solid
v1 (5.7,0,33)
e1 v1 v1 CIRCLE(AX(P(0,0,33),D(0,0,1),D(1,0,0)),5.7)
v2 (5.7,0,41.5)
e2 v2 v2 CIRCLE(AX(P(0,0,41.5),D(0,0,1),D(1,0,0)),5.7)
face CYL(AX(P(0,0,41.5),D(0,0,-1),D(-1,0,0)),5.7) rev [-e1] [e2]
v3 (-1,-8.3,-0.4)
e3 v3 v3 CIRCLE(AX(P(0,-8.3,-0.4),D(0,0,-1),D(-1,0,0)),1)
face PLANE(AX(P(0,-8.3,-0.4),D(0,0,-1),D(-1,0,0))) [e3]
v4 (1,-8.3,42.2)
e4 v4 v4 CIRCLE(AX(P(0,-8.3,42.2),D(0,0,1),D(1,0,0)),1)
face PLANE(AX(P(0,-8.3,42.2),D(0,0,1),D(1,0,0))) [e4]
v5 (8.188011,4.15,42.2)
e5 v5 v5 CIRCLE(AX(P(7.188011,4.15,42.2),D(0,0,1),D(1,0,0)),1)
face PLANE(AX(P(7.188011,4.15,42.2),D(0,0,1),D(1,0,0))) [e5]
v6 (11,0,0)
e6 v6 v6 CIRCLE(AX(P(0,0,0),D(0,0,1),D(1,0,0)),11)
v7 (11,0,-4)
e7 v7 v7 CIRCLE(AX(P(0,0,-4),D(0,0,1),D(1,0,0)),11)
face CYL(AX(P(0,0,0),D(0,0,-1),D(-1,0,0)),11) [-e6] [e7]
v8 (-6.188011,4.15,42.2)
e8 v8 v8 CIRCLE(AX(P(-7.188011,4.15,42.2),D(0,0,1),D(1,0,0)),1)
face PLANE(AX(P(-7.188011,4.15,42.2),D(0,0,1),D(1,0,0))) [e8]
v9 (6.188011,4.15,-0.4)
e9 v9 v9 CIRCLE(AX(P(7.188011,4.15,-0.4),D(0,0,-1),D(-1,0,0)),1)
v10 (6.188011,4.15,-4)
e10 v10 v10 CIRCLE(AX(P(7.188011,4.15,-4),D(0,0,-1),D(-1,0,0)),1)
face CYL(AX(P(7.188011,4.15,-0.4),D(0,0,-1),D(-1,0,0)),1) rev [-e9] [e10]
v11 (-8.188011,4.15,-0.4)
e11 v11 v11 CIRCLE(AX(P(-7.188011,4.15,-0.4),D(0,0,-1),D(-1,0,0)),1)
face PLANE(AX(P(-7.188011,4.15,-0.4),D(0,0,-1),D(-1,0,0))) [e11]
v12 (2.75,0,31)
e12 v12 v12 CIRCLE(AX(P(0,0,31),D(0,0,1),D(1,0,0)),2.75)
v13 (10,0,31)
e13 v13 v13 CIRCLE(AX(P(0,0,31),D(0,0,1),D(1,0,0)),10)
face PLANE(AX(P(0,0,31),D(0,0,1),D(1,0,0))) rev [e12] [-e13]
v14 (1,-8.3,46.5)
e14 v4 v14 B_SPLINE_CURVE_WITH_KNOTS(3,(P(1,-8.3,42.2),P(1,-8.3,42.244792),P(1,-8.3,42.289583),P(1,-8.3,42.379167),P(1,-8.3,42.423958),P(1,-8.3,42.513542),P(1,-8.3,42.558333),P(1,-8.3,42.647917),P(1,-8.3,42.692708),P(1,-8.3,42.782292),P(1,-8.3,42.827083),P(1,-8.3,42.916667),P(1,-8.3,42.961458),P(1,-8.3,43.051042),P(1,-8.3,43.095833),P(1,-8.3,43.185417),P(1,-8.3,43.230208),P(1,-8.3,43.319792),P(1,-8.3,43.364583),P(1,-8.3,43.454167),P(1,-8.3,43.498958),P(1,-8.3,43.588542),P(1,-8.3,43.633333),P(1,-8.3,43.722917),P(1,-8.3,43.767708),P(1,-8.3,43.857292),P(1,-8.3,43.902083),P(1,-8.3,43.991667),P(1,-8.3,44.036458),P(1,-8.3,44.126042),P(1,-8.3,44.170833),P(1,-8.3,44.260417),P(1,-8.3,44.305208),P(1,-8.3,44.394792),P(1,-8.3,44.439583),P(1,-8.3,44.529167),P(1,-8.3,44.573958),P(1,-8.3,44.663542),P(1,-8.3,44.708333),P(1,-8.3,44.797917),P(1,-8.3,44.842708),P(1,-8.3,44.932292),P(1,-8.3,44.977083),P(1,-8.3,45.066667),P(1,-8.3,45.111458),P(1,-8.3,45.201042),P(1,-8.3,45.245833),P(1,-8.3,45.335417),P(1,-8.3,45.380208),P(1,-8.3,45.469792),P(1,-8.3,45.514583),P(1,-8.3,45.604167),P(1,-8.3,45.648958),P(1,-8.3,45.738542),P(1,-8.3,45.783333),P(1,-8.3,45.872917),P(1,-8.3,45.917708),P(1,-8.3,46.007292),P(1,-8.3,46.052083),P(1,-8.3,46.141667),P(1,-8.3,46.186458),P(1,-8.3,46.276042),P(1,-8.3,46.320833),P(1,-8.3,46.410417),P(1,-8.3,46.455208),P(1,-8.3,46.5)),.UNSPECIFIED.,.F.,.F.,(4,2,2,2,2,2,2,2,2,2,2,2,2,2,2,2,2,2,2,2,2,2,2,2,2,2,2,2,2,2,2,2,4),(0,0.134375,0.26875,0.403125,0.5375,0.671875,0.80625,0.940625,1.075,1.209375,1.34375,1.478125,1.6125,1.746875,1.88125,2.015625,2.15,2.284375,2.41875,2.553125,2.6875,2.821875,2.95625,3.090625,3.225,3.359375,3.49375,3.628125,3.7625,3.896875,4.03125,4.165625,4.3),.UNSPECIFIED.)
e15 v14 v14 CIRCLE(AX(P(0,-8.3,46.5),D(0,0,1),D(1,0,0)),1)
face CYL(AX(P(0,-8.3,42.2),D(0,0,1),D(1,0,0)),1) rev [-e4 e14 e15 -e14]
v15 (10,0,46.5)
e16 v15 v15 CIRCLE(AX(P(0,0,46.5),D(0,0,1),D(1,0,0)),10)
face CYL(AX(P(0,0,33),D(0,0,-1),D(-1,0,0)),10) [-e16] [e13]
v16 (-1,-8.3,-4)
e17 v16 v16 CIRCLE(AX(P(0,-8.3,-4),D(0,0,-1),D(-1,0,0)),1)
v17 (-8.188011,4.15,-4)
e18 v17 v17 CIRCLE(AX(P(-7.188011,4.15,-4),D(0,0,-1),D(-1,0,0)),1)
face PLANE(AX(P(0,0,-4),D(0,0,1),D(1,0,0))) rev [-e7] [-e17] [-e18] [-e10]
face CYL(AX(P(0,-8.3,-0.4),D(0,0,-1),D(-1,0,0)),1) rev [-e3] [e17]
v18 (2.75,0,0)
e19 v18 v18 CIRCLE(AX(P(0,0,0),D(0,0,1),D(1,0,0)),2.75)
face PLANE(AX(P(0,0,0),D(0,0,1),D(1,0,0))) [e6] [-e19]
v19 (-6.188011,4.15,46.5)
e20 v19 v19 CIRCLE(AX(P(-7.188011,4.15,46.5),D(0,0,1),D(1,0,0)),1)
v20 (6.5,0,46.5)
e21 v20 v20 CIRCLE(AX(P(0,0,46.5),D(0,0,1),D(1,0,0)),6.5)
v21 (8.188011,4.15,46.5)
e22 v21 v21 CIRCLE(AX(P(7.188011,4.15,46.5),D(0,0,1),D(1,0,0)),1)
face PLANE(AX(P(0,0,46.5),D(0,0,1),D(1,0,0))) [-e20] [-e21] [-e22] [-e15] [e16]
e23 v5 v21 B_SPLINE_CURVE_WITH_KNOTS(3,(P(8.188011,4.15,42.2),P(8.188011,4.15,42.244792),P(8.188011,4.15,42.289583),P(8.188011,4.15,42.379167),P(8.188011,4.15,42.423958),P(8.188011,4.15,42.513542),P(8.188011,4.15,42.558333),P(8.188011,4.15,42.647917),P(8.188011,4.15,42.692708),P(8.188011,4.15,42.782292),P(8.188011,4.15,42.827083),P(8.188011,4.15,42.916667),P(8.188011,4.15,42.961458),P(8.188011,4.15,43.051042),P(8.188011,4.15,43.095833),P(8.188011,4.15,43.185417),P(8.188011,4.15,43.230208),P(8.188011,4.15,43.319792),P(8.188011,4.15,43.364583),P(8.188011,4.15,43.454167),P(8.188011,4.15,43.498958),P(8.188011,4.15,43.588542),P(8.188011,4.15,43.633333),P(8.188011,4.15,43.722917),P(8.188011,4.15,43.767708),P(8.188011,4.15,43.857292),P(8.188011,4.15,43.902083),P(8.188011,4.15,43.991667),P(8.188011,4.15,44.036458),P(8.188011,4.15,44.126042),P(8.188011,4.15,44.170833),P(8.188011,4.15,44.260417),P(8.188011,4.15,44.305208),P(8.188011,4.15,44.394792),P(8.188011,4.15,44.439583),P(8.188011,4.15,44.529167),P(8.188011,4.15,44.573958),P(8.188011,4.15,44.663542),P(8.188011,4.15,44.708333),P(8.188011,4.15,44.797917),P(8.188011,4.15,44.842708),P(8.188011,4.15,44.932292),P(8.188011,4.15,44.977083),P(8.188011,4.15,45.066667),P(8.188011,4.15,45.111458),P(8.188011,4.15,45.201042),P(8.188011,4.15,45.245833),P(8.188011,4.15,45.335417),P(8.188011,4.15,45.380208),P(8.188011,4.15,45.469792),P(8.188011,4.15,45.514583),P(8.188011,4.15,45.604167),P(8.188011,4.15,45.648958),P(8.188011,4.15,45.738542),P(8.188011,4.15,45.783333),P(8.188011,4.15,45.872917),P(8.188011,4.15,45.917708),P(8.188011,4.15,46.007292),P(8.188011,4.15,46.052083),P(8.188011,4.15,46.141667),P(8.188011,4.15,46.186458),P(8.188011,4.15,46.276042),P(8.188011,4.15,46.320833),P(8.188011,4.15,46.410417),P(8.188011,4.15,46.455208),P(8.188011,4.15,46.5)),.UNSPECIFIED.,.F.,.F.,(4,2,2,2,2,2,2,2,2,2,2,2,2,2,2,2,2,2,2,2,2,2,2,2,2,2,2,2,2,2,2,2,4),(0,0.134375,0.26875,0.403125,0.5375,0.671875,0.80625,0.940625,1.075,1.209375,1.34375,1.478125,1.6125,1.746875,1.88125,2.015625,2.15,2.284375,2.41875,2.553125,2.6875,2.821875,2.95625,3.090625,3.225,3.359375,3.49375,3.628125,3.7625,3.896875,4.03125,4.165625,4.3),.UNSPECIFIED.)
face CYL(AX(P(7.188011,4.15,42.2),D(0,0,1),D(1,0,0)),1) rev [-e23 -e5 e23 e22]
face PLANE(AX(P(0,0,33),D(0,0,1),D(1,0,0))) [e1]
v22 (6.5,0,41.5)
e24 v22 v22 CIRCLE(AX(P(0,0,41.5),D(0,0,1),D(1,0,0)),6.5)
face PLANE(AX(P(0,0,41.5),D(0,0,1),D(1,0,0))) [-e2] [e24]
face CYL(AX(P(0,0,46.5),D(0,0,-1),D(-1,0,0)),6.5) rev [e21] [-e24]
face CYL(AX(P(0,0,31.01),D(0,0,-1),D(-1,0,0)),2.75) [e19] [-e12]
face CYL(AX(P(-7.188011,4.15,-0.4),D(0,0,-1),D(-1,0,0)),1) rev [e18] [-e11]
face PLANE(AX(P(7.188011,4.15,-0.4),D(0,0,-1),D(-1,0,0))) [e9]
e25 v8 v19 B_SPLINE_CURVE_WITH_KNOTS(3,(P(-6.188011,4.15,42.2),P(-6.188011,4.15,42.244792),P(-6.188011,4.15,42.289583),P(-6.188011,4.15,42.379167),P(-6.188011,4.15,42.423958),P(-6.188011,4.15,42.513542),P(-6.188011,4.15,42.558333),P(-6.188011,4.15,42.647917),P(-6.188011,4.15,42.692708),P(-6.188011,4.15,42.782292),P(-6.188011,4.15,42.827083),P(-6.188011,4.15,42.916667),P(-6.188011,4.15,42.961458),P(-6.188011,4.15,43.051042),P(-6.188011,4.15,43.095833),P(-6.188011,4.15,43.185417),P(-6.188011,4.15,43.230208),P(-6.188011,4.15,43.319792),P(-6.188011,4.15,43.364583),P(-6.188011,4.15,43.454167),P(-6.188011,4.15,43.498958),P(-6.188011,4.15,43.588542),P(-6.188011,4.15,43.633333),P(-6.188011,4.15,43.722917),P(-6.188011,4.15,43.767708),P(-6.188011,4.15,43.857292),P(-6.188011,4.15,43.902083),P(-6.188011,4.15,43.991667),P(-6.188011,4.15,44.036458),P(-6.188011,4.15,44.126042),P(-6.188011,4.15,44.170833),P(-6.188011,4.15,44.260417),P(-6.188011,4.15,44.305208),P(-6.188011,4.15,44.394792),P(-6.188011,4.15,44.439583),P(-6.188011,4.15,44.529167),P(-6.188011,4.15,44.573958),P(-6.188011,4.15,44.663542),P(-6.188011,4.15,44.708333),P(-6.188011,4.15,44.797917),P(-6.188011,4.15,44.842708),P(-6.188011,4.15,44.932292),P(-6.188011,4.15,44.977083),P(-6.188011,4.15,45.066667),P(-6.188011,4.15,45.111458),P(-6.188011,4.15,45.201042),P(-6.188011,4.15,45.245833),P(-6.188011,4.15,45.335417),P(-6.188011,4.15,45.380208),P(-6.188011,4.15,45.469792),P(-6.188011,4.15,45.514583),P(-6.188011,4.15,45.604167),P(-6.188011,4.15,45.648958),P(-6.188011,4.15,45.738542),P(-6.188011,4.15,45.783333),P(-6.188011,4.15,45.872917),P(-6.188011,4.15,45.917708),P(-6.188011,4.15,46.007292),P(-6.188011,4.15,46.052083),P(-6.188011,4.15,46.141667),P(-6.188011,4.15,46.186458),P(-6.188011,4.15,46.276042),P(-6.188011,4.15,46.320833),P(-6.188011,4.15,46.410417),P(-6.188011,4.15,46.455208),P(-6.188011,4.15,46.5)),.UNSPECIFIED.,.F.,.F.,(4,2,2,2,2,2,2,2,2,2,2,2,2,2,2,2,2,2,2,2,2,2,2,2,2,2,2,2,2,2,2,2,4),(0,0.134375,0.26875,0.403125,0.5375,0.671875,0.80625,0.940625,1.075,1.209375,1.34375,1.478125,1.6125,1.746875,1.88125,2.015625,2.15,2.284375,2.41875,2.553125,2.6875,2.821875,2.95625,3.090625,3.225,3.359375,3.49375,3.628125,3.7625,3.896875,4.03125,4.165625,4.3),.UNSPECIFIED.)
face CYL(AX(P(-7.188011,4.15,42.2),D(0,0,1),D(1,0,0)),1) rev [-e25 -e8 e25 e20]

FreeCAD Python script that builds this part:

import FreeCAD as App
import Part
import Sketcher
from FreeCAD import Vector

doc = App.newDocument("Part")
body = doc.addObject("PartDesign::Body", "Body")

# Sketch on XY plane
sketch1 = doc.addObject("Sketcher::SketchObject", "Sketch")
body.addObject(sketch1)
sketch1.AttachmentSupport = (doc.XY_Plane, [""])
sketch1.MapMode = "FlatFace"
sketch1.AttachmentOffset = App.Placement(Vector(0, 0, -4), App.Rotation())
sketch1.addGeometry(Part.Circle(Vector(0, 0, 0), Vector(0, 0, 1), 11), False)
sketch1.addConstraint([
    Sketcher.Constraint("Coincident", 0, 3, -1, 1),
    Sketcher.Constraint("Diameter", 0, 22.0),
])
pad1 = doc.addObject("PartDesign::Pad", "Pad")
body.addObject(pad1)
pad1.Profile = sketch1
pad1.Length = 4

# Sketch on XY plane
sketch2 = doc.addObject("Sketcher::SketchObject", "Sketch001")
body.addObject(sketch2)
sketch2.AttachmentSupport = (doc.XY_Plane, [""])
sketch2.MapMode = "FlatFace"
sketch2.addGeometry(Part.Circle(Vector(0, 0, 0), Vector(0, 0, 1), 2.75), False)
sketch2.addConstraint([
    Sketcher.Constraint("Coincident", 0, 3, -1, 1),
    Sketcher.Constraint("Diameter", 0, 5.5),
])
pad2 = doc.addObject("PartDesign::Pad", "Pad001")
body.addObject(pad2)
pad2.Profile = sketch2
pad2.Length = 31.01

# Sketch on XY plane
sketch3 = doc.addObject("Sketcher::SketchObject", "Sketch002")
body.addObject(sketch3)
sketch3.AttachmentSupport = (doc.XY_Plane, [""])
sketch3.MapMode = "FlatFace"
sketch3.AttachmentOffset = App.Placement(Vector(0, 0, 31), App.Rotation())
sketch3.addGeometry(Part.Circle(Vector(0, 0, 0), Vector(0, 0, 1), 10), False)
sketch3.addConstraint([
    Sketcher.Constraint("Coincident", 0, 3, -1, 1),
    Sketcher.Constraint("Diameter", 0, 20.0),
])
pad3 = doc.addObject("PartDesign::Pad", "Pad002")
body.addObject(pad3)
pad3.Profile = sketch3
pad3.Length = 2

# Sketch on XY plane
sketch4 = doc.addObject("Sketcher::SketchObject", "Sketch003")
body.addObject(sketch4)
sketch4.AttachmentSupport = (doc.XY_Plane, [""])
sketch4.MapMode = "FlatFace"
sketch4.AttachmentOffset = App.Placement(Vector(0, 0, 33), App.Rotation())
sketch4.addGeometry([
    Part.Circle(Vector(0, 0, 0), Vector(0, 0, 1), 10),
    Part.Circle(Vector(0, 0, 0), Vector(0, 0, 1), 5.7),
], False)
sketch4.addConstraint([
    Sketcher.Constraint("Coincident", 0, 3, -1, 1),
    Sketcher.Constraint("Coincident", 1, 3, -1, 1),
    Sketcher.Constraint("Diameter", 0, 20.0),
    Sketcher.Constraint("Diameter", 1, 11.4),
])
pad4 = doc.addObject("PartDesign::Pad", "Pad003")
body.addObject(pad4)
pad4.Profile = sketch4
pad4.Length = 8.5

# Sketch on XY plane
sketch5 = doc.addObject("Sketcher::SketchObject", "Sketch004")
body.addObject(sketch5)
sketch5.AttachmentSupport = (doc.XY_Plane, [""])
sketch5.MapMode = "FlatFace"
sketch5.AttachmentOffset = App.Placement(Vector(0, 0, 41.5), App.Rotation())
sketch5.addGeometry([
    Part.Circle(Vector(0, 0, 0), Vector(0, 0, 1), 10),
    Part.Circle(Vector(0, 0, 0), Vector(0, 0, 1), 6.5),
], False)
sketch5.addConstraint([
    Sketcher.Constraint("Coincident", 0, 3, -1, 1),
    Sketcher.Constraint("Coincident", 1, 3, -1, 1),
    Sketcher.Constraint("Diameter", 0, 20.0),
    Sketcher.Constraint("Diameter", 1, 13.0),
])
pad5 = doc.addObject("PartDesign::Pad", "Pad004")
body.addObject(pad5)
pad5.Profile = sketch5
pad5.Length = 5

# Sketch on XY plane
sketch6 = doc.addObject("Sketcher::SketchObject", "Sketch005")
body.addObject(sketch6)
sketch6.AttachmentSupport = (doc.XY_Plane, [""])
sketch6.MapMode = "FlatFace"
sketch6.AttachmentOffset = App.Placement(Vector(0, 0, -4), App.Rotation())
sketch6.addGeometry([
    Part.Circle(Vector(7.188011, 4.15, 0), Vector(0, 0, 1), 1),
    Part.Circle(Vector(-7.188011, 4.15, 0), Vector(0, 0, 1), 1),
    Part.Circle(Vector(0, -8.3, 0), Vector(0, 0, 1), 1),
], False)
sketch6.addConstraint([
    Sketcher.Constraint("Equal", 0, 1),
    Sketcher.Constraint("Equal", 1, 2),
    Sketcher.Constraint("Symmetric", 0, 3, 1, 3, -2),
    Sketcher.Constraint("PointOnObject", 2, 3, -2),
    Sketcher.Constraint("Diameter", 0, 2.0),
    Sketcher.Constraint("DistanceY", 2, 3, -1, 1, 8.3),
    Sketcher.Constraint("DistanceY", -1, 1, 0, 3, 4.15),
    Sketcher.Constraint("DistanceX", -1, 1, 0, 3, 7.188011),
])
pocket1 = doc.addObject("PartDesign::Pocket", "Pocket")
body.addObject(pocket1)
pocket1.Profile = sketch6
pocket1.Length = 3.6
pocket1.Reversed = True

# Sketch on XY plane
sketch7 = doc.addObject("Sketcher::SketchObject", "Sketch006")
body.addObject(sketch7)
sketch7.AttachmentSupport = (doc.XY_Plane, [""])
sketch7.MapMode = "FlatFace"
sketch7.AttachmentOffset = App.Placement(Vector(0, 0, 42.2), App.Rotation())
sketch7.addGeometry([
    Part.Circle(Vector(7.188011, 4.15, 0), Vector(0, 0, 1), 1),
    Part.Circle(Vector(-7.188011, 4.15, 0), Vector(0, 0, 1), 1),
    Part.Circle(Vector(0, -8.3, 0), Vector(0, 0, 1), 1),
], False)
sketch7.addConstraint([
    Sketcher.Constraint("Equal", 0, 1),
    Sketcher.Constraint("Equal", 1, 2),
    Sketcher.Constraint("Symmetric", 0, 3, 1, 3, -2),
    Sketcher.Constraint("PointOnObject", 2, 3, -2),
    Sketcher.Constraint("Diameter", 0, 2.0),
    Sketcher.Constraint("DistanceY", 2, 3, -1, 1, 8.3),
    Sketcher.Constraint("DistanceY", -1, 1, 0, 3, 4.15),
    Sketcher.Constraint("DistanceX", -1, 1, 0, 3, 7.188011),
])
pocket2 = doc.addObject("PartDesign::Pocket", "Pocket001")
body.addObject(pocket2)
pocket2.Profile = sketch7
pocket2.Length = 4.3
pocket2.Reversed = True

doc.recompute()
